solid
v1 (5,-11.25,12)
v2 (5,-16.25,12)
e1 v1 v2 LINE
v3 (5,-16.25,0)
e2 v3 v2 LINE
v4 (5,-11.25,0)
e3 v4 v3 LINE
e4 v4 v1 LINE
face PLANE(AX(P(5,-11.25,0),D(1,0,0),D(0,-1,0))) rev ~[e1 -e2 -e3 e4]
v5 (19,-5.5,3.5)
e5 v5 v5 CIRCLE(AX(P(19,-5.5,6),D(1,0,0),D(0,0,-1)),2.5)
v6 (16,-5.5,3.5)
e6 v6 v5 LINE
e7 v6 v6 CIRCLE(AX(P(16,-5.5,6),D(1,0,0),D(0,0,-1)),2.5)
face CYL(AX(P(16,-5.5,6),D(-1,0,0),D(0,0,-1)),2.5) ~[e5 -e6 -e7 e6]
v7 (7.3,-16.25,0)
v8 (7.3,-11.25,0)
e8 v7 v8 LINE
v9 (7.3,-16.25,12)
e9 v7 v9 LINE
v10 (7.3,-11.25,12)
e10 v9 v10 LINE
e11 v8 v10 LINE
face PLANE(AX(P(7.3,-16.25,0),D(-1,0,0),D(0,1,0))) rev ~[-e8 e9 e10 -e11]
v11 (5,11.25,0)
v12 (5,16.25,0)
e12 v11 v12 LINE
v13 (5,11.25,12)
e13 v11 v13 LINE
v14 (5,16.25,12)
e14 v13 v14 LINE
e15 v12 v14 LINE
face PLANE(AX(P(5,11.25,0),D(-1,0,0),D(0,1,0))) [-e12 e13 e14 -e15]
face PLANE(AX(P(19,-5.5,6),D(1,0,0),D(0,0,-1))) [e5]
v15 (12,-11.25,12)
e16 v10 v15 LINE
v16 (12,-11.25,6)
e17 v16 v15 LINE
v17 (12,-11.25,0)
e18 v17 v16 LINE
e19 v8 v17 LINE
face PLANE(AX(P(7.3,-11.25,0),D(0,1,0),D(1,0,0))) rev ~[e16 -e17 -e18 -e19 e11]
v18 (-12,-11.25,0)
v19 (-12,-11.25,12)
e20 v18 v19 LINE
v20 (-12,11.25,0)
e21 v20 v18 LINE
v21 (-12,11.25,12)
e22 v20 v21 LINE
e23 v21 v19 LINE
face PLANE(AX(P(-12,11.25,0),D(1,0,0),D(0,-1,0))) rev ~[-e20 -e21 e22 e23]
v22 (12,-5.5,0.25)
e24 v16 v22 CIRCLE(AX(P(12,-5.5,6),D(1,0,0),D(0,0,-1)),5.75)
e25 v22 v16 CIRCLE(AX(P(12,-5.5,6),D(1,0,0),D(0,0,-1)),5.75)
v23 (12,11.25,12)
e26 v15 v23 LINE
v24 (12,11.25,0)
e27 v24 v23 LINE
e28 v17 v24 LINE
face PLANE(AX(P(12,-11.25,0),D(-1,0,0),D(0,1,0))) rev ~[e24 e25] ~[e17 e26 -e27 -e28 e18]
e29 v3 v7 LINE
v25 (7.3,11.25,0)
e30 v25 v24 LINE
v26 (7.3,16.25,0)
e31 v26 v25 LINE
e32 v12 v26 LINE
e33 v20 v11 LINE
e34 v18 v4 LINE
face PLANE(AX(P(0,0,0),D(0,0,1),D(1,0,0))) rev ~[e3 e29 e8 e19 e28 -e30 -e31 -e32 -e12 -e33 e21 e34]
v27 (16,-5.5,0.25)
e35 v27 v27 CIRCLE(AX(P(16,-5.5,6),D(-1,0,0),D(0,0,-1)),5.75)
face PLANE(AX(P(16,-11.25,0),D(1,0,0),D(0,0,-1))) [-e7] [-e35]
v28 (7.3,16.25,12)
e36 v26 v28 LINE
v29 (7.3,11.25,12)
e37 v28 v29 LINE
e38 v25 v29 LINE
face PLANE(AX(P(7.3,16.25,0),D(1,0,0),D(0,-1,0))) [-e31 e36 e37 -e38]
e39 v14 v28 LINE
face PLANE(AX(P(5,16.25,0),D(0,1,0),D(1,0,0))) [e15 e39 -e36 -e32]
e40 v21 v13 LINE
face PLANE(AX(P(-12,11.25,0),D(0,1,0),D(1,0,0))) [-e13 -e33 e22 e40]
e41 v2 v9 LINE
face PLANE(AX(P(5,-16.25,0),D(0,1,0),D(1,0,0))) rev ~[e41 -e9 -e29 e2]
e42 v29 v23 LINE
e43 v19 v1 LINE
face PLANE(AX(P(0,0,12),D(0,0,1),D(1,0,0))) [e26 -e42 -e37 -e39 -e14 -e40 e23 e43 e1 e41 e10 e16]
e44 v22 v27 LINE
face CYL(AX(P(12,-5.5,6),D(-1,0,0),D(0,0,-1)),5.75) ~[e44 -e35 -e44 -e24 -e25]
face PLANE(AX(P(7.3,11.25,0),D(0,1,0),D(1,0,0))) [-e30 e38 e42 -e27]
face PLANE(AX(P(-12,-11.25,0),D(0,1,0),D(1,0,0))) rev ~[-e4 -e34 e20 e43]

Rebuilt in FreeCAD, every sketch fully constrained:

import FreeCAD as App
import Part
import Sketcher


def add_polygon(sketch, points):
    """Adds a closed chain of lines whose ends are joined by coincident constraints."""
    first, n = sketch.GeometryCount, len(points)
    for a, b in zip(points, points[1:] + points[:1]):
        sketch.addGeometry(Part.LineSegment(App.Vector(*a, 0), App.Vector(*b, 0)), False)
    for i in range(n):
        sketch.addConstraint(Sketcher.Constraint("Coincident", first + i, 2, first + (i + 1) % n, 1))

doc = App.newDocument("Part")
body = doc.addObject("PartDesign::Body", "Body")

# Sketch on XY plane
sketch1 = body.newObject("Sketcher::SketchObject", "Sketch")
sketch1.AttachmentSupport = (doc.getObject("XY_Plane"), [""])
sketch1.MapMode = "FlatFace"
add_polygon(sketch1, [(7.3, -11.2), (12, -11.2), (12, 11.2), (7.3, 11.2), (7.3, 16.2), (5, 16.2), (5, 11.2), (-12, 11.2), (-12, -11.2), (5, -11.2), (5, -16.2), (7.3, -16.2)])  # lines 0-11
sketch1.addConstraint([
    Sketcher.Constraint("Horizontal", 0),
    Sketcher.Constraint("Vertical", 1),
    Sketcher.Constraint("Horizontal", 2),
    Sketcher.Constraint("Vertical", 3),
    Sketcher.Constraint("Horizontal", 4),
    Sketcher.Constraint("Vertical", 5),
    Sketcher.Constraint("Horizontal", 6),
    Sketcher.Constraint("Vertical", 7),
    Sketcher.Constraint("Horizontal", 8),
    Sketcher.Constraint("Vertical", 9),
    Sketcher.Constraint("Horizontal", 10),
    Sketcher.Constraint("Vertical", 11),
    Sketcher.Constraint("Symmetric", 0, 2, 6, 2, -1, 1),
    Sketcher.Constraint("Symmetric", 5, 2, 8, 2, -1),
    Sketcher.Constraint("Symmetric", 3, 2, 10, 2, -1),
    Sketcher.Constraint("Horizontal", 2, 2, 5, 2),
    Sketcher.Constraint("DistanceX", 6, 2, 6, 1, 17.0),
    Sketcher.Constraint("DistanceY", 3, 1, 3, 2, 5.0),
    Sketcher.Constraint("DistanceX", 4, 2, 4, 1, 2.3),
    Sketcher.Constraint("DistanceY", 1, 1, 1, 2, 22.5),
    Sketcher.Constraint("DistanceX", -1, 1, 4, 2, 5.0),
])
pad1 = body.newObject("PartDesign::Pad", "Pad")
pad1.Profile = sketch1
pad1.Length = 12

# Sketch on YZ plane
sketch2 = body.newObject("Sketcher::SketchObject", "Sketch001")
sketch2.AttachmentSupport = (doc.getObject("YZ_Plane"), [""])
sketch2.MapMode = "FlatFace"
sketch2.AttachmentOffset = App.Placement(App.Vector(0, 0, 12), App.Rotation())
sketch2.addGeometry(Part.Circle(App.Vector(-6, 6, 0), App.Vector(0, 0, 1), 6), False)
sketch2.addConstraint([
    Sketcher.Constraint("Diameter", 0, 11.5),
    Sketcher.Constraint("DistanceY", -1, 1, 0, 3, 6.0),
    Sketcher.Constraint("DistanceX", 0, 3, -1, 1, 5.5),
])
pad2 = body.newObject("PartDesign::Pad", "Pad001")
pad2.Profile = sketch2
pad2.Length = 4

# Sketch on YZ plane
sketch3 = body.newObject("Sketcher::SketchObject", "Sketch002")
sketch3.AttachmentSupport = (doc.getObject("YZ_Plane"), [""])
sketch3.MapMode = "FlatFace"
sketch3.AttachmentOffset = App.Placement(App.Vector(0, 0, 16), App.Rotation())
sketch3.addGeometry(Part.Circle(App.Vector(-5.5, 6, 0), App.Vector(0, 0, 1), 2.5), False)
sketch3.addConstraint([
    Sketcher.Constraint("Diameter", 0, 5.0),
    Sketcher.Constraint("DistanceY", -1, 1, 0, 3, 6.0),
    Sketcher.Constraint("DistanceX", 0, 3, -1, 1, 5.5),
])
pad3 = body.newObject("PartDesign::Pad", "Pad002")
pad3.Profile = sketch3
pad3.Length = 3

doc.recompute()
